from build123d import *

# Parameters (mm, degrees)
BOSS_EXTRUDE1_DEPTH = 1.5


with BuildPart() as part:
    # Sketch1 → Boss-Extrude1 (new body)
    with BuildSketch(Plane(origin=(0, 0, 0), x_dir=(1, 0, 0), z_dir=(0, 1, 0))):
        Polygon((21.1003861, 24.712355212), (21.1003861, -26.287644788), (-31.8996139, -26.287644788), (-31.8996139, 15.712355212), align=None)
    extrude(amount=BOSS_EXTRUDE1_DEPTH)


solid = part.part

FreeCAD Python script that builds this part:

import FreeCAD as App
import Part
import Sketcher
Q = App.Units.Quantity


def add_polygon(sketch, points):
    """Adds a closed chain of lines whose ends are joined by coincident constraints."""
    first, n = sketch.GeometryCount, len(points)
    for a, b in zip(points, points[1:] + points[:1]):
        sketch.addGeometry(Part.LineSegment(App.Vector(*a, 0), App.Vector(*b, 0)), False)
    for i in range(n):
        sketch.addConstraint(Sketcher.Constraint("Coincident", first + i, 2, first + (i + 1) % n, 1))

doc = App.newDocument("Part")
body = doc.addObject("PartDesign::Body", "Body")

sketch1 = body.newObject("Sketcher::SketchObject", "Sketch")
sketch1.AttachmentSupport = (doc.getObject("XZ_Plane"), [""])
sketch1.MapMode = "FlatFace"
add_polygon(sketch1, [(21.100386, 26.287645), (21.100386, -24.712355), (-31.899614, -15.712355), (-31.899614, 26.287645)])
sketch1.addConstraint([
    Sketcher.Constraint("Vertical", 0),
    Sketcher.Constraint("Vertical", 2),
    Sketcher.Constraint("Horizontal", 3),
    Sketcher.Constraint("DistanceX", 3, 1, 3, 2, Q("53 mm")),
    Sketcher.Constraint("DistanceY", 0, 2, 0, 1, Q("51 mm")),
    Sketcher.Constraint("DistanceY", 2, 1, 2, 2, Q("42 mm")),
    Sketcher.Constraint("DistanceX", -1, 1, 0, 2, Q("21.100386 mm")),
    Sketcher.Constraint("DistanceY", 0, 2, -1, 1, Q("24.712355 mm")),
])
pad1 = body.newObject("PartDesign::Pad", "Pad")
pad1.Profile = sketch1
pad1.Length = 1.5
pad1.Reversed = True

doc.recompute()
